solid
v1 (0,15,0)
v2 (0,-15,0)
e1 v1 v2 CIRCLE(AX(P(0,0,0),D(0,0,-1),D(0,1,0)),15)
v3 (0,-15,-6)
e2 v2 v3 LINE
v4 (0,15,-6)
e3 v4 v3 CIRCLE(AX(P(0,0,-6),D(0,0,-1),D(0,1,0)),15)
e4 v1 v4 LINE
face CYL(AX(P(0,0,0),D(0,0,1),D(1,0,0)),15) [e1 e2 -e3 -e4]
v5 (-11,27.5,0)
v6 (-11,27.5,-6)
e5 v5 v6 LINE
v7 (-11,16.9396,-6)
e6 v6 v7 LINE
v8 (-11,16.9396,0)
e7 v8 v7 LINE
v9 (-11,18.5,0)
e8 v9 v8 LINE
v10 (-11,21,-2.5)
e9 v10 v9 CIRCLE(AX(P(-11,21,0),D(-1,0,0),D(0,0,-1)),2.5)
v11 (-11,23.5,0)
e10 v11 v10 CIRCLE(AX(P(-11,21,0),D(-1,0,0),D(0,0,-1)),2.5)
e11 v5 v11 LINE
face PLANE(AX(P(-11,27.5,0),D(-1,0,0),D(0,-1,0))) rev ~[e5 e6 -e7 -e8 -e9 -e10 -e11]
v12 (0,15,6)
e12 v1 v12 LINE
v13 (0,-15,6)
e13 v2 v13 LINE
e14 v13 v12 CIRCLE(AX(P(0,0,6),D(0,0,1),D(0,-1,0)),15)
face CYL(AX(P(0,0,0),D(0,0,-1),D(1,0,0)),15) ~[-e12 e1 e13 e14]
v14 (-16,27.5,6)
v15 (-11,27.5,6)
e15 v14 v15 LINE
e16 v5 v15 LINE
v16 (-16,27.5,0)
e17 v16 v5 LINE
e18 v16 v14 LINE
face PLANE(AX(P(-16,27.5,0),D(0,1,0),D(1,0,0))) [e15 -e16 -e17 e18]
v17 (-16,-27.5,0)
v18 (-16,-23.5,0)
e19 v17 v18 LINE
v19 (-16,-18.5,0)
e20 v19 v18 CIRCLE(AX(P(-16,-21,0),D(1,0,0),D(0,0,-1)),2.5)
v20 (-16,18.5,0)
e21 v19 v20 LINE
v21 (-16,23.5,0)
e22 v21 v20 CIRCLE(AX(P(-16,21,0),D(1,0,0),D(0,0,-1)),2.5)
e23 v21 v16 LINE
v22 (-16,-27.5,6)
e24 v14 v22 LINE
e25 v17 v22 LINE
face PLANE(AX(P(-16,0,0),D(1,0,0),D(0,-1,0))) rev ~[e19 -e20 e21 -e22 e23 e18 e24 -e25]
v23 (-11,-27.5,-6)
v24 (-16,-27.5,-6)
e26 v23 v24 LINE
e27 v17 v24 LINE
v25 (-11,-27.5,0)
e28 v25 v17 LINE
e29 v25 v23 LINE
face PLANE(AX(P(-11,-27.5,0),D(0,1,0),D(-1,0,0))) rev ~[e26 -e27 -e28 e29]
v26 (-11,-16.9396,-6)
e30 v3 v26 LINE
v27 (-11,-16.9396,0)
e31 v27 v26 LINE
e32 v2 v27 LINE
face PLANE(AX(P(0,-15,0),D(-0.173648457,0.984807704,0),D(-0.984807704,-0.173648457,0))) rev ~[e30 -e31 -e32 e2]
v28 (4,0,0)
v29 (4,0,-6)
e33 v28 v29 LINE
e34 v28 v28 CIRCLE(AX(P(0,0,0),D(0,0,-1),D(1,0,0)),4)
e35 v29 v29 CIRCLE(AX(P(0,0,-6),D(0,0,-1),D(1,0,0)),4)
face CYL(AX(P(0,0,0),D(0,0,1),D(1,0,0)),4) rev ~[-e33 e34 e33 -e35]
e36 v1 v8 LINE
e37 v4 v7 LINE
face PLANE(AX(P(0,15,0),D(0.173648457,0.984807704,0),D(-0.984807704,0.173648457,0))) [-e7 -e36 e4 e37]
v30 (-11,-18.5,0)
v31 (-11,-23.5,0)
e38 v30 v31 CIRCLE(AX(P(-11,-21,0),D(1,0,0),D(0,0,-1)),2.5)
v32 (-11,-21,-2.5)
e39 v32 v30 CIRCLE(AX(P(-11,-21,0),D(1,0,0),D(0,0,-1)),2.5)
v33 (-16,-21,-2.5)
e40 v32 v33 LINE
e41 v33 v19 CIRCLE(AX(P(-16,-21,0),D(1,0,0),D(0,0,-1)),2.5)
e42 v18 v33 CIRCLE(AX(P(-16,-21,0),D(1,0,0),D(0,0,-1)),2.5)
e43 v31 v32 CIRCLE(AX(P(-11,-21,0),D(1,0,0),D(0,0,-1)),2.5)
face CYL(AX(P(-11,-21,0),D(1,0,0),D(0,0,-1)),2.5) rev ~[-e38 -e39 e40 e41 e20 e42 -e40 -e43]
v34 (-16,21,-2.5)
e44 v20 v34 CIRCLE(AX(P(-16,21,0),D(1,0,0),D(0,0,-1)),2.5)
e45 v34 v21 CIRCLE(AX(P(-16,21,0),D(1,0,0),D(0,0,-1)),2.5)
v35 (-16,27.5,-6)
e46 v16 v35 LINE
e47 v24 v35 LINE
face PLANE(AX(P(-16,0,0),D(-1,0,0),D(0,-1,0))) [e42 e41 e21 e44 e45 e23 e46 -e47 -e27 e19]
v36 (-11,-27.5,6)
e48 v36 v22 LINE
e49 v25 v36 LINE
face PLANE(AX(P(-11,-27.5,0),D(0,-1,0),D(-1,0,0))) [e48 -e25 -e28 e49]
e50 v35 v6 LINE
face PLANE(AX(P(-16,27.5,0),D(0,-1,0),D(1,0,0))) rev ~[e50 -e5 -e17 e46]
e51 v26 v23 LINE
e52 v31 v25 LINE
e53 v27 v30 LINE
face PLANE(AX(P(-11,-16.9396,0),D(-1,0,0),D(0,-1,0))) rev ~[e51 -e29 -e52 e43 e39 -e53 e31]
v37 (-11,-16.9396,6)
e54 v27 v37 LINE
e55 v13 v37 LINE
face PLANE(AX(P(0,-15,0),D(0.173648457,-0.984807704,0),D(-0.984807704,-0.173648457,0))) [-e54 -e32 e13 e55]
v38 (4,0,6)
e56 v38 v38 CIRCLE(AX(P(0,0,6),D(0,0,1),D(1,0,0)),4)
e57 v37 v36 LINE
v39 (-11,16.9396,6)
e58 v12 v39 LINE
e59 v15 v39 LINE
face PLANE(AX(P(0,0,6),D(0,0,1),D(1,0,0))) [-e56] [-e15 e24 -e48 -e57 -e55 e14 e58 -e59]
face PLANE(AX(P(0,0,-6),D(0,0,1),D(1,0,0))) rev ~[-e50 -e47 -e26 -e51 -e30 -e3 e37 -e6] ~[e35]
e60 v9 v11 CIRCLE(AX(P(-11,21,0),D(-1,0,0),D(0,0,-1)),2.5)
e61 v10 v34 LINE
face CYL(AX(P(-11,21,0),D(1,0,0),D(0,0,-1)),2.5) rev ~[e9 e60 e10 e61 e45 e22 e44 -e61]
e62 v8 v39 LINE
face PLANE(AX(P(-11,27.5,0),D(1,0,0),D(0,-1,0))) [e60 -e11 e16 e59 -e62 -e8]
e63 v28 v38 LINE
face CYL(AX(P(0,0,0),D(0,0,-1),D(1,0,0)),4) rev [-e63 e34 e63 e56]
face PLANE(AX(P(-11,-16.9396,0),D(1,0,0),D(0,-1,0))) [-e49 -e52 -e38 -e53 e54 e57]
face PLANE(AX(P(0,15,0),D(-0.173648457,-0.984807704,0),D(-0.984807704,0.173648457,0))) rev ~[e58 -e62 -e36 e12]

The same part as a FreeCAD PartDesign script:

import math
import FreeCAD as App
import Part
import Sketcher
Q = App.Units.Quantity

doc = App.newDocument("Part")
body = doc.addObject("PartDesign::Body", "Body")

# Sketch on XY plane
sketch1 = body.newObject("Sketcher::SketchObject", "Sketch")
sketch1.AttachmentSupport = (doc.getObject("XY_Plane"), [""])
sketch1.MapMode = "FlatFace"
sketch1.addGeometry([
    Part.LineSegment(App.Vector(0, 15, 0), App.Vector(-11, 16.9, 0)),  # 0
    Part.LineSegment(App.Vector(-11, 16.9, 0), App.Vector(-11, 27.5, 0)),  # 1
    Part.LineSegment(App.Vector(-11, 27.5, 0), App.Vector(-16, 27.5, 0)),  # 2
    Part.LineSegment(App.Vector(-16, 27.5, 0), App.Vector(-16, -27.5, 0)),  # 3
    Part.LineSegment(App.Vector(-16, -27.5, 0), App.Vector(-11, -27.5, 0)),  # 4
    Part.LineSegment(App.Vector(-11, -27.5, 0), App.Vector(-11, -16.9, 0)),  # 5
    Part.LineSegment(App.Vector(-11, -16.9, 0), App.Vector(0, -15, 0)),  # 6
    Part.ArcOfCircle(Part.Circle(App.Vector(0, 0, 0), App.Vector(0, 0, 1), 15), math.radians(-90), math.radians(90)),  # 7
    Part.Circle(App.Vector(0, 0, 0), App.Vector(0, 0, 1), 4),  # 8
], False)
sketch1.addConstraint([
    Sketcher.Constraint("Coincident", 0, 2, 1, 1),
    Sketcher.Constraint("Coincident", 1, 2, 2, 1),
    Sketcher.Constraint("Coincident", 2, 2, 3, 1),
    Sketcher.Constraint("Coincident", 3, 2, 4, 1),
    Sketcher.Constraint("Coincident", 4, 2, 5, 1),
    Sketcher.Constraint("Coincident", 5, 2, 6, 1),
    Sketcher.Constraint("Coincident", 6, 2, 7, 1),
    Sketcher.Constraint("Coincident", 7, 2, 0, 1),
    Sketcher.Constraint("Vertical", 1),
    Sketcher.Constraint("Horizontal", 2),
    Sketcher.Constraint("Vertical", 3),
    Sketcher.Constraint("Horizontal", 4),
    Sketcher.Constraint("Vertical", 5),
    Sketcher.Constraint("Coincident", 7, 3, -1, 1),
    Sketcher.Constraint("Coincident", 8, 3, -1, 1),
    Sketcher.Constraint("Symmetric", 1, 2, 4, 2, -1),
    Sketcher.Constraint("PointOnObject", 6, 2, -2),
    Sketcher.Constraint("PointOnObject", 7, 2, -2),
    Sketcher.Constraint("Equal", 1, 5),
    Sketcher.Constraint("Diameter", 8, 8.0),
    Sketcher.Constraint("Radius", 7, 15.0),
    Sketcher.Constraint("DistanceY", 3, 2, 3, 1, 55.0),
    Sketcher.Constraint("Angle", 0, Q("170 deg")),
    Sketcher.Constraint("DistanceX", 2, 2, -1, 1, 16.0),
    Sketcher.Constraint("DistanceX", 2, 2, 2, 1, 5.0),
])
pad1 = body.newObject("PartDesign::Pad", "Pad")
pad1.Profile = sketch1
pad1.Length = 12
pad1.Midplane = True

# Sketch on YZ plane
sketch2 = body.newObject("Sketcher::SketchObject", "Sketch001")
sketch2.AttachmentSupport = (doc.getObject("YZ_Plane"), [""])
sketch2.MapMode = "FlatFace"
sketch2.AttachmentOffset = App.Placement(App.Vector(0, 0, -11), App.Rotation())
sketch2.addGeometry([
    Part.Circle(App.Vector(21, 0, 0), App.Vector(0, 0, 1), 2.5),
    Part.Circle(App.Vector(-21, 0, 0), App.Vector(0, 0, 1), 2.5),
], False)
sketch2.addConstraint([
    Sketcher.Constraint("Equal", 0, 1),
    Sketcher.Constraint("Symmetric", 0, 3, 1, 3, -1, 1),
    Sketcher.Constraint("PointOnObject", 0, 3, -1),
    Sketcher.Constraint("Diameter", 0, 5.0),
    Sketcher.Constraint("DistanceX", -1, 1, 0, 3, 21.0),
])
pocket1 = body.newObject("PartDesign::Pocket", "Pocket")
pocket1.Profile = sketch2
pocket1.Length = 10

doc.recompute()
